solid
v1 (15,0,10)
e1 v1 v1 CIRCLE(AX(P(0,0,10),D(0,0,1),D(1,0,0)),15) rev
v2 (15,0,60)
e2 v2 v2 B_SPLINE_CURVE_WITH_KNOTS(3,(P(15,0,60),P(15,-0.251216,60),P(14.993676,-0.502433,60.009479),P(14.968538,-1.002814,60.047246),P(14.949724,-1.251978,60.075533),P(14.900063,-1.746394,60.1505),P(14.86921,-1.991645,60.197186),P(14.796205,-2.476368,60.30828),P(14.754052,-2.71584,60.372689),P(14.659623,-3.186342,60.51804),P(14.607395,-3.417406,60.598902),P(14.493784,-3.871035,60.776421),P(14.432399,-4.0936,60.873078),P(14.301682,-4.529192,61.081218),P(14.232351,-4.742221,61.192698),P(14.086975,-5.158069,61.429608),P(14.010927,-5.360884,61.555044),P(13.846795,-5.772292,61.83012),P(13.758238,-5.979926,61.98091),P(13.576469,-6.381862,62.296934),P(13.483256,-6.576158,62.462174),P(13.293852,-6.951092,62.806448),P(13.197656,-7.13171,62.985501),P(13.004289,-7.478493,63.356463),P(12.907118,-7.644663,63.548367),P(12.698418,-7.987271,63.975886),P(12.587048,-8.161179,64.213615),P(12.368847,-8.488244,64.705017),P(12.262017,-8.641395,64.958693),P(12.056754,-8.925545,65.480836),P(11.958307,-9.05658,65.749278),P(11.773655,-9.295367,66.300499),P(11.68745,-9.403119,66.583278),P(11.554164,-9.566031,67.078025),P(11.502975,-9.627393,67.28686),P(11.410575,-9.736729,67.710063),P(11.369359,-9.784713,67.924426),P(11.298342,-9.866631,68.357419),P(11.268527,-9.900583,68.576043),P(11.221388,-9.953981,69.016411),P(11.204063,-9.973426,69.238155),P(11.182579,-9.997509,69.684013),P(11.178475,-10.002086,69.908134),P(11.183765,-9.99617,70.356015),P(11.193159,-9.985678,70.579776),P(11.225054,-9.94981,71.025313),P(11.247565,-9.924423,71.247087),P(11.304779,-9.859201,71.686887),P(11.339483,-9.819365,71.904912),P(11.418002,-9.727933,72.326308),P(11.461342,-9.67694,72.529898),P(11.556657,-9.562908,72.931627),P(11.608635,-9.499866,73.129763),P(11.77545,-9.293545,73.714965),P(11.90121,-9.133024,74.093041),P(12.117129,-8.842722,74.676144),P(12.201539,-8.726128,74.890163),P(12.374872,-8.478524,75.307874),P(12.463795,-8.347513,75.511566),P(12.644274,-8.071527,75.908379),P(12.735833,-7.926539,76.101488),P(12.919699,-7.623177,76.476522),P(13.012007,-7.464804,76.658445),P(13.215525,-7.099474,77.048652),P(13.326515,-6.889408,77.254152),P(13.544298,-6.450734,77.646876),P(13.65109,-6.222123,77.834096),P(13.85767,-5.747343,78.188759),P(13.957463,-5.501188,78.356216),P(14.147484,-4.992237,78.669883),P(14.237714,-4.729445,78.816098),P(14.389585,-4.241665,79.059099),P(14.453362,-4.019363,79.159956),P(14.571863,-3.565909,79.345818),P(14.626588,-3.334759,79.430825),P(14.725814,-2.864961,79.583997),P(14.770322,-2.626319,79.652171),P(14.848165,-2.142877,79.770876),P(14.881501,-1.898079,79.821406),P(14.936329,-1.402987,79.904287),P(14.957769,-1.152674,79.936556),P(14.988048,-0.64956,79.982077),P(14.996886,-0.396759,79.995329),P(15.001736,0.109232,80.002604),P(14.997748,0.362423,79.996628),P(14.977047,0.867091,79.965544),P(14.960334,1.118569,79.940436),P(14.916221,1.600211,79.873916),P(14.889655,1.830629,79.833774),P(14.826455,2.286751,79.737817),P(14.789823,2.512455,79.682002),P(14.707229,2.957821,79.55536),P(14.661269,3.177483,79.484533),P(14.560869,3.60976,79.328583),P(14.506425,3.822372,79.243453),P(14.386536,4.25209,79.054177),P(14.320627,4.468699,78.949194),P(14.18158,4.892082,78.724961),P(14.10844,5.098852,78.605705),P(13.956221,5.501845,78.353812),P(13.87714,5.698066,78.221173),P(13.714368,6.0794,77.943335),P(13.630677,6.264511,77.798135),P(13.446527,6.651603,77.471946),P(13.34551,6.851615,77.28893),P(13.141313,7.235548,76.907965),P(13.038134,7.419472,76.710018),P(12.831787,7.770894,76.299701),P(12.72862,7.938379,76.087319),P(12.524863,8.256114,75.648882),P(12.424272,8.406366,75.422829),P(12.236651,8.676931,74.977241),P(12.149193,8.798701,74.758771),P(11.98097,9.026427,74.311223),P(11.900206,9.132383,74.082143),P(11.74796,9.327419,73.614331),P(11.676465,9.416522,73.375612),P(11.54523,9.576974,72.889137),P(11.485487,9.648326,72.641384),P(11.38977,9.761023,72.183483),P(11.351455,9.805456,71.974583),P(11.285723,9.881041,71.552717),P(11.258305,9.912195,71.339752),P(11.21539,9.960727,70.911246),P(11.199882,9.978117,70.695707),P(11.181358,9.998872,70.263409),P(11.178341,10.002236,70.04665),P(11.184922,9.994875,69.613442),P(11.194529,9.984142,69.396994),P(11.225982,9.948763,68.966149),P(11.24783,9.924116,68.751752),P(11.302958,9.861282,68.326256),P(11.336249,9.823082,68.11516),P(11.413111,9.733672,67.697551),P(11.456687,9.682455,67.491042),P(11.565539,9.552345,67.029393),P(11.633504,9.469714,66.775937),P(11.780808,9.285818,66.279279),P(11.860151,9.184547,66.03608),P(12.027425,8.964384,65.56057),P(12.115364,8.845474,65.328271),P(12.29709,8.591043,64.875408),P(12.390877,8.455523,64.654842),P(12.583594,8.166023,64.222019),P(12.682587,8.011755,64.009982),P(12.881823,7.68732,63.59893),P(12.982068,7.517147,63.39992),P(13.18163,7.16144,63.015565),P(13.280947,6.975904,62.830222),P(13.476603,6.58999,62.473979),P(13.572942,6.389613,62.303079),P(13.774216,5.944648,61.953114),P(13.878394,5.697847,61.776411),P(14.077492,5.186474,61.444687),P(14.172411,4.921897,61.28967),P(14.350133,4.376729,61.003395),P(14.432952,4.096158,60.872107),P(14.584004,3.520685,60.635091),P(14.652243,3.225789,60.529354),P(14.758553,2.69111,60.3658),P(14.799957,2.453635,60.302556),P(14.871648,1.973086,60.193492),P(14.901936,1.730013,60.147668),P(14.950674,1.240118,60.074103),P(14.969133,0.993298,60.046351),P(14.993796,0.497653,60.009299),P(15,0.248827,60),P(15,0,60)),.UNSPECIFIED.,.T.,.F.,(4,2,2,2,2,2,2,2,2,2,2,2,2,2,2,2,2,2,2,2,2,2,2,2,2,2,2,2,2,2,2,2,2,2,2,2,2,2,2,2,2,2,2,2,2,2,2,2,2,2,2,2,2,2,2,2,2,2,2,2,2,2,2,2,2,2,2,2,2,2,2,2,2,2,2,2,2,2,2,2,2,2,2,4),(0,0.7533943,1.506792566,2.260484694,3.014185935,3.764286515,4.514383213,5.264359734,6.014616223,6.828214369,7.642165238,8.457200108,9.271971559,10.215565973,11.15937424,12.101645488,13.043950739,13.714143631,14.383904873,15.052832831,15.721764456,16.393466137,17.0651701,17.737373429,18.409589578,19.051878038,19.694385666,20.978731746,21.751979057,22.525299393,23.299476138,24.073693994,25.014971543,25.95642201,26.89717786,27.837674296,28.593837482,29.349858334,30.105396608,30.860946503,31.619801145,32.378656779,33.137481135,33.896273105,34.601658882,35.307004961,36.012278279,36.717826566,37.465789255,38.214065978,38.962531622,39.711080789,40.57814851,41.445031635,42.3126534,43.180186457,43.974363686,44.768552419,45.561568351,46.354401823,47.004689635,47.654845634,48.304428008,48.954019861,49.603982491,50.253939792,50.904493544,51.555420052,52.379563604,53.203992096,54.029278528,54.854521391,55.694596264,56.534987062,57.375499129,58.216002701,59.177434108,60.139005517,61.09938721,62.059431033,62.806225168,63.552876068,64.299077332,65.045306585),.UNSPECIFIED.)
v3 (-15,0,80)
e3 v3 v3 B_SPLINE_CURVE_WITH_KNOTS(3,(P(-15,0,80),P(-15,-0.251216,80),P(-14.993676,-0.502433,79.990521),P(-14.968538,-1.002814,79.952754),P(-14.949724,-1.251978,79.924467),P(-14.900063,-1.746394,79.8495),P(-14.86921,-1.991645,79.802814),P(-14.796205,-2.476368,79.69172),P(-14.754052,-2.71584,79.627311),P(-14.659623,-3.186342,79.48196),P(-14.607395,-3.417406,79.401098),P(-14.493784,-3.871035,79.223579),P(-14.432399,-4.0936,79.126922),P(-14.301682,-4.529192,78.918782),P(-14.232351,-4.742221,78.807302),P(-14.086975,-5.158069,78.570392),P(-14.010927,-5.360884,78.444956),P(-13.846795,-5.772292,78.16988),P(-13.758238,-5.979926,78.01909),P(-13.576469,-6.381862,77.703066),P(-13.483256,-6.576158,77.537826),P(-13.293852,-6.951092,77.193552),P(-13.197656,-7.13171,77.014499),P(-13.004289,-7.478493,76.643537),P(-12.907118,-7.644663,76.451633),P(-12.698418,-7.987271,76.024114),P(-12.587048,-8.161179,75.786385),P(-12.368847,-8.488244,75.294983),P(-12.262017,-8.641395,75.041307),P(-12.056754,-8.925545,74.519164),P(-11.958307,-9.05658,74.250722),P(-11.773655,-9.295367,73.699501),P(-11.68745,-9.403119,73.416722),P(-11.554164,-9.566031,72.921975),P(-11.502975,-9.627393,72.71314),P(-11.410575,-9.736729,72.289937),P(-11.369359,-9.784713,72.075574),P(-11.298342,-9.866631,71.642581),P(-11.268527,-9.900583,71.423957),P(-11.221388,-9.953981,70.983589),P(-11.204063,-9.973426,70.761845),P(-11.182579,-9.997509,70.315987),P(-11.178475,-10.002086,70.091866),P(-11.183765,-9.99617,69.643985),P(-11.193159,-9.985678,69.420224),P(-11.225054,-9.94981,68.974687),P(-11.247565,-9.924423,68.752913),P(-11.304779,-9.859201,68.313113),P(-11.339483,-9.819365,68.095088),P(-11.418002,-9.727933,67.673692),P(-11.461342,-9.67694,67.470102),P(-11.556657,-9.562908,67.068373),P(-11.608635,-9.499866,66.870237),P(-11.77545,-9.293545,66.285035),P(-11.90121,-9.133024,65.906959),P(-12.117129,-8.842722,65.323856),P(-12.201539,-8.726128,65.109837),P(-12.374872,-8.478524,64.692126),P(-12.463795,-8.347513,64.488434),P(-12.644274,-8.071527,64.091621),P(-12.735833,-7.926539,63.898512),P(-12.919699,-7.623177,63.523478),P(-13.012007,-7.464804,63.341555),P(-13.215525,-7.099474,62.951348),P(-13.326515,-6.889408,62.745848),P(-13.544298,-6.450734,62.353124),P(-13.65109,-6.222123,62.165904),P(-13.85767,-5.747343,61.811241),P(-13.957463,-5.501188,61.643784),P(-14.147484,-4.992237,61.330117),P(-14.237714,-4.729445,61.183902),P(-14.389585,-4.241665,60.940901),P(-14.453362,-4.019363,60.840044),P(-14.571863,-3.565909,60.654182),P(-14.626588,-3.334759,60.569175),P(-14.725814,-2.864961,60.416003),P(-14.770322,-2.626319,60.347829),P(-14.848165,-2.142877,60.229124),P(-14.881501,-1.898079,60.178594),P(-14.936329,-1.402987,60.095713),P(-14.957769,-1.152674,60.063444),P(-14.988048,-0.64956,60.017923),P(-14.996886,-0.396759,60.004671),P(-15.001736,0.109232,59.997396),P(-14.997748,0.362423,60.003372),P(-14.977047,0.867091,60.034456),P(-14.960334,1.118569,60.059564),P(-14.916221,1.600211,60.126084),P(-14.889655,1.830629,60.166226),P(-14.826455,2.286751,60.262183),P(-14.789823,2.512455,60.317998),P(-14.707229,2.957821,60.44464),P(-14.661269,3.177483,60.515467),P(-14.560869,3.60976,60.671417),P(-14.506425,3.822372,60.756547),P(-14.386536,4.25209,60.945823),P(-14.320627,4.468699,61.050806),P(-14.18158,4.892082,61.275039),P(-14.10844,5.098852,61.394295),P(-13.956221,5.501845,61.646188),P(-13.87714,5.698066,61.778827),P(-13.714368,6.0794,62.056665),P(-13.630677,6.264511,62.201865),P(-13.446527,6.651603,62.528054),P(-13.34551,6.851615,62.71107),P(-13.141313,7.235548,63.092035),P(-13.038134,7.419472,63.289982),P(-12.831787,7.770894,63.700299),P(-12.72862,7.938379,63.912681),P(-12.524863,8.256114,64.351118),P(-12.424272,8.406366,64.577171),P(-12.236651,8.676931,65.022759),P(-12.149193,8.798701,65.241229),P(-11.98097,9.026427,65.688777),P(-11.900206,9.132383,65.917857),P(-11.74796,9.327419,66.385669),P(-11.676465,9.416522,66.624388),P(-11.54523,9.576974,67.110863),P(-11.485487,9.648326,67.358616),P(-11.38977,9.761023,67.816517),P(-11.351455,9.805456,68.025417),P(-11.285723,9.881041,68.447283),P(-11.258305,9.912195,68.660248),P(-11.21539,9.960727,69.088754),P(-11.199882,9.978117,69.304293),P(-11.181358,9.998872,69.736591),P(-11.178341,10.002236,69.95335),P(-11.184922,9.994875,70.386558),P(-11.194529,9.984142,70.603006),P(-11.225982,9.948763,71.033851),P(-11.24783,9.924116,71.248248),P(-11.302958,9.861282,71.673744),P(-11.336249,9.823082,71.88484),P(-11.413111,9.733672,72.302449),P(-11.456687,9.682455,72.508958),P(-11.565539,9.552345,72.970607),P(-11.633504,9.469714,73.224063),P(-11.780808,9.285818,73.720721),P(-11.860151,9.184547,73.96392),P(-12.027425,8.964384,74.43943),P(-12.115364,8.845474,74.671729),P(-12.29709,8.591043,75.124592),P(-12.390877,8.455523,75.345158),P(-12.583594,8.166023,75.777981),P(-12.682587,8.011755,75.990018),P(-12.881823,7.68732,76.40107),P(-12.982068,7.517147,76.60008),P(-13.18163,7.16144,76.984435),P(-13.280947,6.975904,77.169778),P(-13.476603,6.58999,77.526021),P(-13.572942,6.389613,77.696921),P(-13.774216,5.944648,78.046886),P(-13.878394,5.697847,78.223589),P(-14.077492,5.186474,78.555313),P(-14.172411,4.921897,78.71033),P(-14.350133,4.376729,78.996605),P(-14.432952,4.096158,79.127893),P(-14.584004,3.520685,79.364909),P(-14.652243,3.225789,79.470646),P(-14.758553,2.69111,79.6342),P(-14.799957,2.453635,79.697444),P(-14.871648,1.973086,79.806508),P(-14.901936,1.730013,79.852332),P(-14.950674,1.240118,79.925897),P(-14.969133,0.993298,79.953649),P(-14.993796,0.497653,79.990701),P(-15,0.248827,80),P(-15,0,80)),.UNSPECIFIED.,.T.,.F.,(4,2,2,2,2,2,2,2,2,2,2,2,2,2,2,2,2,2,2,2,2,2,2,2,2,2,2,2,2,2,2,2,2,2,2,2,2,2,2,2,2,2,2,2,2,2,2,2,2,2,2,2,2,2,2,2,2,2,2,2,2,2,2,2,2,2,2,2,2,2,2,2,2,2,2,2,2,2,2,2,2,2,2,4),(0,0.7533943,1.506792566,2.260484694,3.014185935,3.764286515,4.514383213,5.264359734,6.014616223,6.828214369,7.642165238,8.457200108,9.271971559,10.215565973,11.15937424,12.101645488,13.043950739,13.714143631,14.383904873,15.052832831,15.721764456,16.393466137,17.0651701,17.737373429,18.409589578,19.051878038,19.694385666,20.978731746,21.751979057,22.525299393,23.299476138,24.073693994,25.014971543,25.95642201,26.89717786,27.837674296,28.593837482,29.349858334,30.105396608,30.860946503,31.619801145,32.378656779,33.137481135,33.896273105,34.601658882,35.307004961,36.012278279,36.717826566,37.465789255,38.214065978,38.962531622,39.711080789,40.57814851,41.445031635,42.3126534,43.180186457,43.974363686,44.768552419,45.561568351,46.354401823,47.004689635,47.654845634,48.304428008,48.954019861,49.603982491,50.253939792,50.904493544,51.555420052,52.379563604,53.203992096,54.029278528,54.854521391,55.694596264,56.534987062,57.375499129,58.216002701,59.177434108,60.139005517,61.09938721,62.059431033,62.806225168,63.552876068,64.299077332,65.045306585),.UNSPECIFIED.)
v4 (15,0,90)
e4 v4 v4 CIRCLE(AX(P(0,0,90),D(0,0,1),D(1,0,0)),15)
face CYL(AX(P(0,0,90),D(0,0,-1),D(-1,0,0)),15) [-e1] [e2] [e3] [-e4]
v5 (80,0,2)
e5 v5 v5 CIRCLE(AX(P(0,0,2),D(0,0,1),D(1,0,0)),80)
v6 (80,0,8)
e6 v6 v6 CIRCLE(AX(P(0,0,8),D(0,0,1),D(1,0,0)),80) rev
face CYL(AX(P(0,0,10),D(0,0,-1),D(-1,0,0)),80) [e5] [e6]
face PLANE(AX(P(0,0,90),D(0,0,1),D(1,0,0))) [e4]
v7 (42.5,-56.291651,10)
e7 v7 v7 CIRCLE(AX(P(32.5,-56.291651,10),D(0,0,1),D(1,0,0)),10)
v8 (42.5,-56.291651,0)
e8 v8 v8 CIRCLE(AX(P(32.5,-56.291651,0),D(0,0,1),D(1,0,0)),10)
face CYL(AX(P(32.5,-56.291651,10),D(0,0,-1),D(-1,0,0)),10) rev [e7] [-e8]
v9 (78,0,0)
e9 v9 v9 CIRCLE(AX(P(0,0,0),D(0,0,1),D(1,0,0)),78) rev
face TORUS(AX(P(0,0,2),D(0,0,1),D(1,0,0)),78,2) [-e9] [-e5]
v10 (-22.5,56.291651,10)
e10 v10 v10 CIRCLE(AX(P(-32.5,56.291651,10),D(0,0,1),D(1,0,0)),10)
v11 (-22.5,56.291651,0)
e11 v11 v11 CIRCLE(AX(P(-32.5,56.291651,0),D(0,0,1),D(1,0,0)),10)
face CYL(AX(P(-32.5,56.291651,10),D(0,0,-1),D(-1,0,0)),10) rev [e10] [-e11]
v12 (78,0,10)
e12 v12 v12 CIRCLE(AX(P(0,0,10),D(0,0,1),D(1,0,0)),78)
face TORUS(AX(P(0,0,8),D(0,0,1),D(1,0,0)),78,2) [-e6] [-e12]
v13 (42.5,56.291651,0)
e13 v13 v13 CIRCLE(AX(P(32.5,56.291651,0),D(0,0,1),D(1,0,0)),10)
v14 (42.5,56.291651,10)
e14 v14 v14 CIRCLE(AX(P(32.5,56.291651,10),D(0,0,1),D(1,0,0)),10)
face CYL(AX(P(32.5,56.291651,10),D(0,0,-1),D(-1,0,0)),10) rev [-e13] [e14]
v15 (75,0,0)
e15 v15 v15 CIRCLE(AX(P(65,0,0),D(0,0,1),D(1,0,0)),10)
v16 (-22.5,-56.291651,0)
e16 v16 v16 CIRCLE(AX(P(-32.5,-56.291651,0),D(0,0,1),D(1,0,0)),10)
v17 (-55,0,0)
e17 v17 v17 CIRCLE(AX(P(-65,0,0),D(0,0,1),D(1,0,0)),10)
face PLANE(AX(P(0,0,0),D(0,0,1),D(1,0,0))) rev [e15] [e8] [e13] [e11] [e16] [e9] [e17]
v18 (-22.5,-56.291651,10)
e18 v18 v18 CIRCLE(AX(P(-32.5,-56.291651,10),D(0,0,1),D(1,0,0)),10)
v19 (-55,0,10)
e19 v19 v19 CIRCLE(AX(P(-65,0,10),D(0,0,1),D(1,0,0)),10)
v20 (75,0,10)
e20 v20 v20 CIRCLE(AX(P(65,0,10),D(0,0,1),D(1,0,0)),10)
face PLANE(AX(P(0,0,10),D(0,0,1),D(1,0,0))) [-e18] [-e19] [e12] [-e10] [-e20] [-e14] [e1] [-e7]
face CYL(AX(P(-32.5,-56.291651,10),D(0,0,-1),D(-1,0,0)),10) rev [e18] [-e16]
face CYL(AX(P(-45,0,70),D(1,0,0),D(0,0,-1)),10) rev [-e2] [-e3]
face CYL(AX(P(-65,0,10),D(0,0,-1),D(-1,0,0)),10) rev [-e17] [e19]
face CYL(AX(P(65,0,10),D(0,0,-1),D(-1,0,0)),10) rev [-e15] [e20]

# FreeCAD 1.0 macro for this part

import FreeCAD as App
import Part
import Sketcher

V = App.Vector
Q = App.Units.Quantity


def edges_at(feature, points):
    """Names of the edges that pass closest to the given points."""
    edges = feature.Shape.Edges
    near = lambda p: min(range(len(edges)), key=lambda i: edges[i].distToShape(Part.Vertex(*p))[0])
    return sorted({f"Edge{near(p) + 1}" for p in points})

doc = App.newDocument("Part")
body = doc.addObject("PartDesign::Body", "Body")

# Sketch on XY plane
sketch1 = body.newObject("Sketcher::SketchObject", "Sketch")
sketch1.AttachmentSupport = (doc.getObject("XY_Plane"), [""])
sketch1.MapMode = "FlatFace"
sketch1.addGeometry(Part.Circle(V(0, 0, 0), V(0, 0, 1), 80), False)
sketch1.addGeometry(Part.Circle(V(-32, -56, 0), V(0, 0, 1), 10), False)
sketch1.addGeometry(Part.Circle(V(32, -56, 0), V(0, 0, 1), 10), False)
sketch1.addGeometry(Part.Circle(V(-65, 0, 0), V(0, 0, 1), 10), False)
sketch1.addGeometry(Part.Circle(V(-32, 56, 0), V(0, 0, 1), 10), False)
sketch1.addGeometry(Part.Circle(V(65, 0, 0), V(0, 0, 1), 10), False)
sketch1.addGeometry(Part.Circle(V(32, 56, 0), V(0, 0, 1), 10), False)
sketch1.addConstraint(Sketcher.Constraint("Coincident", 0, 3, -1, 1))
sketch1.addConstraint(Sketcher.Constraint("Equal", 1, 2))
sketch1.addConstraint(Sketcher.Constraint("Equal", 2, 3))
sketch1.addConstraint(Sketcher.Constraint("Equal", 3, 4))
sketch1.addConstraint(Sketcher.Constraint("Equal", 4, 5))
sketch1.addConstraint(Sketcher.Constraint("Equal", 5, 6))
sketch1.addConstraint(Sketcher.Constraint("Symmetric", 2, 3, 4, 3, -1, 1))
sketch1.addConstraint(Sketcher.Constraint("Symmetric", 3, 3, 5, 3, -1, 1))
sketch1.addConstraint(Sketcher.Constraint("Symmetric", 1, 3, 6, 3, -1, 1))
sketch1.addConstraint(Sketcher.Constraint("Symmetric", 1, 3, 2, 3, -2))
sketch1.addConstraint(Sketcher.Constraint("PointOnObject", 3, 3, -1))
sketch1.addConstraint(Sketcher.Constraint("Diameter", 0, Q("160 mm")))
sketch1.addConstraint(Sketcher.Constraint("Diameter", 1, Q("20 mm")))
sketch1.addConstraint(Sketcher.Constraint("DistanceX", 3, 3, -1, 1, Q("65 mm")))
sketch1.addConstraint(Sketcher.Constraint("DistanceX", 1, 3, 2, 3, Q("65 mm")))
sketch1.addConstraint(Sketcher.Constraint("DistanceY", 1, 3, -1, 1, Q("56.291651 mm")))
pad1 = body.newObject("PartDesign::Pad", "Pad")
pad1.Profile = sketch1
pad1.Length = 10

# Sketch on XY plane
sketch2 = body.newObject("Sketcher::SketchObject", "Sketch001")
sketch2.AttachmentSupport = (doc.getObject("XY_Plane"), [""])
sketch2.MapMode = "FlatFace"
sketch2.addGeometry(Part.Circle(V(0, 0, 0), V(0, 0, 1), 15), False)
sketch2.addConstraint(Sketcher.Constraint("Coincident", 0, 3, -1, 1))
sketch2.addConstraint(Sketcher.Constraint("Diameter", 0, Q("30 mm")))
pad2 = body.newObject("PartDesign::Pad", "Pad001")
pad2.Profile = sketch2
pad2.Length = 90

# Sketch on YZ plane
sketch3 = body.newObject("Sketcher::SketchObject", "Sketch002")
sketch3.AttachmentSupport = (doc.getObject("YZ_Plane"), [""])
sketch3.MapMode = "FlatFace"
sketch3.addGeometry(Part.Circle(V(0, 70, 0), V(0, 0, 1), 10), False)
sketch3.addConstraint(Sketcher.Constraint("PointOnObject", 0, 3, -2))
sketch3.addConstraint(Sketcher.Constraint("Diameter", 0, Q("20 mm")))
sketch3.addConstraint(Sketcher.Constraint("DistanceY", -1, 1, 0, 3, Q("70 mm")))
pocket1 = body.newObject("PartDesign::Pocket", "Pocket")
pocket1.Profile = sketch3
pocket1.Length = 90
pocket1.Midplane = True
doc.recompute()

fillet = body.newObject("PartDesign::Fillet", "Fillet")
fillet.Base = (pocket1, edges_at(pocket1, [(-80, 0, 0), (-80, 0, 10)]))
fillet.Radius = 2

doc.recompute()
